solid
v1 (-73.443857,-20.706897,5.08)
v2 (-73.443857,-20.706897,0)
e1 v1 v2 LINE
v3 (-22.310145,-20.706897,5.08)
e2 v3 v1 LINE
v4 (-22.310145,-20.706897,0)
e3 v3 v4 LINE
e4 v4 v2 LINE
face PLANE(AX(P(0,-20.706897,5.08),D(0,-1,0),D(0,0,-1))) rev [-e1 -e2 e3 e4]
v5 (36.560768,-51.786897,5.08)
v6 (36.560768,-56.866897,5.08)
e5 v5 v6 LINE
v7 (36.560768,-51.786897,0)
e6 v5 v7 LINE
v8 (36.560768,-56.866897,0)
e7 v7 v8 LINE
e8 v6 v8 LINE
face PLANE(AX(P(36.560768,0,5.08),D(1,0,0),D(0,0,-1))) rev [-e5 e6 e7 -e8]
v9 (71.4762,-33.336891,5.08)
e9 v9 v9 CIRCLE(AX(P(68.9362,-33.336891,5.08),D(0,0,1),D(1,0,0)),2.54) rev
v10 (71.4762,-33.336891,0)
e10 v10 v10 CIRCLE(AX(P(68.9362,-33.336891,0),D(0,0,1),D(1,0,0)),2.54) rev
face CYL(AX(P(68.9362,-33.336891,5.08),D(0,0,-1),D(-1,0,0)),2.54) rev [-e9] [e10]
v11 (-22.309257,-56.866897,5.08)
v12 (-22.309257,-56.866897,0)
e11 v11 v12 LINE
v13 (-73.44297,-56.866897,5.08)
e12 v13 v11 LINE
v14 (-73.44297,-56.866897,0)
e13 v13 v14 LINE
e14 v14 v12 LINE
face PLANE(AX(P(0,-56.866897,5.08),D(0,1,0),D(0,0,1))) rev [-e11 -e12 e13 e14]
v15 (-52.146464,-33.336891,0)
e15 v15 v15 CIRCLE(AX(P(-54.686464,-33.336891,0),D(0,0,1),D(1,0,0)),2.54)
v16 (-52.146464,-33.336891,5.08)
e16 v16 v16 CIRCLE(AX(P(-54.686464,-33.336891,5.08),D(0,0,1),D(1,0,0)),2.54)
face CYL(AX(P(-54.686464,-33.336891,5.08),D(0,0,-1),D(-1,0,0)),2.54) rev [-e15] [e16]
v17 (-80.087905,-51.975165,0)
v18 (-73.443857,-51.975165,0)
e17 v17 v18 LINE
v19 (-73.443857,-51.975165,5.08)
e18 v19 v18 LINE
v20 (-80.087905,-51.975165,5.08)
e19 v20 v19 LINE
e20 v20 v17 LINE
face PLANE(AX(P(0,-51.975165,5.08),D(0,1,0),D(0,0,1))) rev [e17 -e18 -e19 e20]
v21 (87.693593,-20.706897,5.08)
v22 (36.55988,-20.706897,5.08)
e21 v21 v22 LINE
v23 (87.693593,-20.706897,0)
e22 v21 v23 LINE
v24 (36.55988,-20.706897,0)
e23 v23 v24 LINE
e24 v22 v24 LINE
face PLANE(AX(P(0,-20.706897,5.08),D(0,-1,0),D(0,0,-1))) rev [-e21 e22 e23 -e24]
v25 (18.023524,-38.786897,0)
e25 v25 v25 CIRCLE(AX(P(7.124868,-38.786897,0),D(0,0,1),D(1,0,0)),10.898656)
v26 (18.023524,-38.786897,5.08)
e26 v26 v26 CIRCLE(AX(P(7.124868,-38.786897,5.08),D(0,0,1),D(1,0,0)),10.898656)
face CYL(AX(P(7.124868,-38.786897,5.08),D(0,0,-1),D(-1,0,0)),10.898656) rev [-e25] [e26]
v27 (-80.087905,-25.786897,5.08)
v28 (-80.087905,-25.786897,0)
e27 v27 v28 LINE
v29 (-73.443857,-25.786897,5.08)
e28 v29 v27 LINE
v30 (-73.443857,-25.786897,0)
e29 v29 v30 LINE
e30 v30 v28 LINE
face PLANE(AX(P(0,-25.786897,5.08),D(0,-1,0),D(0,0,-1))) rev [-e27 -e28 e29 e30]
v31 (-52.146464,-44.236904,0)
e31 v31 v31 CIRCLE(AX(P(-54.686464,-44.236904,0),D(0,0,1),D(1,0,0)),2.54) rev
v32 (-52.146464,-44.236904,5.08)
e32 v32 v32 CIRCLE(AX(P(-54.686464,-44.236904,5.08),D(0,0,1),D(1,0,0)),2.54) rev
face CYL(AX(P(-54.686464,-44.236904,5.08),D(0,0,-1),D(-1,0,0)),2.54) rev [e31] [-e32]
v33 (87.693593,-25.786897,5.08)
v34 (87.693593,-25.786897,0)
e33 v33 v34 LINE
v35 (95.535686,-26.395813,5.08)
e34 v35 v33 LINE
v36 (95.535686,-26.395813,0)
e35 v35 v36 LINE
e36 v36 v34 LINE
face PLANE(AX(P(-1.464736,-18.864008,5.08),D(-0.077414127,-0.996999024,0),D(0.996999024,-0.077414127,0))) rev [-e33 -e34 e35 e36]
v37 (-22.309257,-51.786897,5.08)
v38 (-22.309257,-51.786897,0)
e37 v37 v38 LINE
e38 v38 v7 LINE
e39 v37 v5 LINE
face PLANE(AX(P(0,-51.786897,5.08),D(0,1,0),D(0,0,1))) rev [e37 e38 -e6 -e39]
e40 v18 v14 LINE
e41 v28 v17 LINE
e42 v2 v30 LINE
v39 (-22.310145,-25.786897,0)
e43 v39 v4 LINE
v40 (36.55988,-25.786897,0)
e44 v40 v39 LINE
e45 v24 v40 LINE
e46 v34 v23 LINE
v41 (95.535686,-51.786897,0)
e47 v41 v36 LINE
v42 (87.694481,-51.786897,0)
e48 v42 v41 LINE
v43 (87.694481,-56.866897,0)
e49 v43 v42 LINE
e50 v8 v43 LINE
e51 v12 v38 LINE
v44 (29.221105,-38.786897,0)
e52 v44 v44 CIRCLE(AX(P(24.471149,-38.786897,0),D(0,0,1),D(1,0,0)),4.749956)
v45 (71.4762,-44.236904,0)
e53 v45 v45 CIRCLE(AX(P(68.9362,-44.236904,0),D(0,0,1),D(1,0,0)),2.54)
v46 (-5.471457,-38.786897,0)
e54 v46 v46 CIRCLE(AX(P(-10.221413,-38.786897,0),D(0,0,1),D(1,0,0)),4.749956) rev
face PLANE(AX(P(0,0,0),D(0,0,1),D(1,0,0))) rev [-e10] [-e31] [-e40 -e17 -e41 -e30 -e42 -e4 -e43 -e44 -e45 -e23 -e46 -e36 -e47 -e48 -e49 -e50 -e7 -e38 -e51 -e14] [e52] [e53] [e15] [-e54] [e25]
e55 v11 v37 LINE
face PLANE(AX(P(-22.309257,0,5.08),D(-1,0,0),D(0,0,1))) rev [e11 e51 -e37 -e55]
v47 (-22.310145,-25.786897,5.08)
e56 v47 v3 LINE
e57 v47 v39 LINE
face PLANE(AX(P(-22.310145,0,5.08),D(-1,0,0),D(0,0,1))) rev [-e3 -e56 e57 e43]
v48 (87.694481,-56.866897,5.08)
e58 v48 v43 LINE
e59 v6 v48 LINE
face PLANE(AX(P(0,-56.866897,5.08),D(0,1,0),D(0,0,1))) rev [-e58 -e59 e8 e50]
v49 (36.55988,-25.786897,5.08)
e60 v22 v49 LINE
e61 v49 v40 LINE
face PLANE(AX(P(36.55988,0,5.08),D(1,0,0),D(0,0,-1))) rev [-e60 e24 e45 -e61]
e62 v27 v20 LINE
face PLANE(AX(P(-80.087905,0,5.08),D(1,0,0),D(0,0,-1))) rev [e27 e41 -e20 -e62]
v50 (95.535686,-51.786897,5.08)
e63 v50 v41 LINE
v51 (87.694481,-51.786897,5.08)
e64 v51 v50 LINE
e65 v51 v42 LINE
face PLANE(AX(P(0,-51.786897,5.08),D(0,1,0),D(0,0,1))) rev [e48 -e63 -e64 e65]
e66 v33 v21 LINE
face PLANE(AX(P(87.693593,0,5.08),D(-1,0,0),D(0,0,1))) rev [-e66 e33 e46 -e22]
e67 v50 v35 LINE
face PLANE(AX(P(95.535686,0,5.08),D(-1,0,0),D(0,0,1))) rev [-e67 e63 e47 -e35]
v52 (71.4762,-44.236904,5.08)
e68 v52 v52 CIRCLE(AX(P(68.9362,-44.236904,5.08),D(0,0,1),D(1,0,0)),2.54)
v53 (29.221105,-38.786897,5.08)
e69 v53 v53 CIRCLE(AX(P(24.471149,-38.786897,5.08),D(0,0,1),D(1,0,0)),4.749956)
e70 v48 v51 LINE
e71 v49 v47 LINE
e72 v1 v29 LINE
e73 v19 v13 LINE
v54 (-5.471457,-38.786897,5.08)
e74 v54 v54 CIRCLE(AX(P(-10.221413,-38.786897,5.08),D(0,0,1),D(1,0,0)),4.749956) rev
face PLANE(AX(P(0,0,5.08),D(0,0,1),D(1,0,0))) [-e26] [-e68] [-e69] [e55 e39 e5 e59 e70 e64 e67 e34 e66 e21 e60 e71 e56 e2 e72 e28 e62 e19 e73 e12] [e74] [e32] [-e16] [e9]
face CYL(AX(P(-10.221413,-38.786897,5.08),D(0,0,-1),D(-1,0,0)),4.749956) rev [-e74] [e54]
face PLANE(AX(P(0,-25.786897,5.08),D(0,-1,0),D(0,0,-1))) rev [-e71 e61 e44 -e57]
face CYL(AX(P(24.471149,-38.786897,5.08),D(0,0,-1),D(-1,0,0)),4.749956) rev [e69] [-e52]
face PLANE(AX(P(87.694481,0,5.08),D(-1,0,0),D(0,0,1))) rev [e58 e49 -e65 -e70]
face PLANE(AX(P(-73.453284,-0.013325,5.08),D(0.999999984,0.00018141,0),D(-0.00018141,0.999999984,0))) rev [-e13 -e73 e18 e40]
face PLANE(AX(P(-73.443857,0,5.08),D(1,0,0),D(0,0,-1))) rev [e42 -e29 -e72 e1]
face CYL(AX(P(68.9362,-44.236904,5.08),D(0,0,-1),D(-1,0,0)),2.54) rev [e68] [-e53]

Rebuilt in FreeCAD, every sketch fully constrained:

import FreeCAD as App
import Part
import Sketcher
from FreeCAD import Vector
Q = App.Units.Quantity

doc = App.newDocument("Part")
params = doc.addObject("Spreadsheet::Sheet", "Params")
for row, (alias, value) in enumerate([
    ("sketch1_diameter", "0.2 in"),
    ("sketch1_height", "0.2 in"),
    ("pad1_length", "0.2 in"),
], start=1):
    params.set(f"A{row}", alias)
    params.set(f"B{row}", "=" + value)
    params.setAlias(f"B{row}", alias)

body = doc.addObject("PartDesign::Body", "Body")

# Sketch on XY plane
sketch1 = doc.addObject("Sketcher::SketchObject", "Sketch")
body.addObject(sketch1)
sketch1.AttachmentSupport = (doc.XY_Plane, [""])
sketch1.MapMode = "FlatFace"
sketch1.addGeometry(Part.LineSegment(Vector(-73.4, -20.7, 0), Vector(-73.4, -25.8, 0)), False)
sketch1.addGeometry(Part.LineSegment(Vector(-73.4, -25.8, 0), Vector(-80.1, -25.8, 0)), False)
sketch1.addGeometry(Part.LineSegment(Vector(-80.1, -25.8, 0), Vector(-80.1, -52, 0)), False)
sketch1.addGeometry(Part.LineSegment(Vector(-80.1, -52, 0), Vector(-73.4, -52, 0)), False)
sketch1.addGeometry(Part.LineSegment(Vector(-73.4, -52, 0), Vector(-73.4, -56.9, 0)), False)
sketch1.addGeometry(Part.LineSegment(Vector(-73.4, -56.9, 0), Vector(-22.3, -56.9, 0)), False)
sketch1.addGeometry(Part.LineSegment(Vector(-22.3, -56.9, 0), Vector(-22.3, -51.8, 0)), False)
sketch1.addGeometry(Part.LineSegment(Vector(-22.3, -51.8, 0), Vector(36.6, -51.8, 0)), False)
sketch1.addGeometry(Part.LineSegment(Vector(36.6, -51.8, 0), Vector(36.6, -56.9, 0)), False)
sketch1.addGeometry(Part.LineSegment(Vector(36.6, -56.9, 0), Vector(87.7, -56.9, 0)), False)
sketch1.addGeometry(Part.LineSegment(Vector(87.7, -56.9, 0), Vector(87.7, -51.8, 0)), False)
sketch1.addGeometry(Part.LineSegment(Vector(87.7, -51.8, 0), Vector(95.5, -51.8, 0)), False)
sketch1.addGeometry(Part.LineSegment(Vector(95.5, -51.8, 0), Vector(95.5, -26.4, 0)), False)
sketch1.addGeometry(Part.LineSegment(Vector(95.5, -26.4, 0), Vector(87.7, -25.8, 0)), False)
sketch1.addGeometry(Part.LineSegment(Vector(87.7, -25.8, 0), Vector(87.7, -20.7, 0)), False)
sketch1.addGeometry(Part.LineSegment(Vector(87.7, -20.7, 0), Vector(36.6, -20.7, 0)), False)
sketch1.addGeometry(Part.LineSegment(Vector(36.6, -20.7, 0), Vector(36.6, -25.8, 0)), False)
sketch1.addGeometry(Part.LineSegment(Vector(36.6, -25.8, 0), Vector(-22.3, -25.8, 0)), False)
sketch1.addGeometry(Part.LineSegment(Vector(-22.3, -25.8, 0), Vector(-22.3, -20.7, 0)), False)
sketch1.addGeometry(Part.LineSegment(Vector(-22.3, -20.7, 0), Vector(-73.4, -20.7, 0)), False)
sketch1.addGeometry(Part.Circle(Vector(-54.7, -44.2, 0), Vector(0, 0, 1), 2.5), False)
sketch1.addGeometry(Part.Circle(Vector(68.9, -44.2, 0), Vector(0, 0, 1), 2.5), False)
sketch1.addGeometry(Part.Circle(Vector(-10.2, -38.8, 0), Vector(0, 0, 1), 4.7), False)
sketch1.addGeometry(Part.Circle(Vector(-54.7, -33.3, 0), Vector(0, 0, 1), 2.5), False)
sketch1.addGeometry(Part.Circle(Vector(7.1, -38.8, 0), Vector(0, 0, 1), 10.9), False)
sketch1.addGeometry(Part.Circle(Vector(24.5, -38.8, 0), Vector(0, 0, 1), 4.7), False)
sketch1.addGeometry(Part.Circle(Vector(68.9, -33.3, 0), Vector(0, 0, 1), 2.5), False)
sketch1.addConstraint(Sketcher.Constraint("Coincident", 0, 2, 1, 1))
sketch1.addConstraint(Sketcher.Constraint("Coincident", 1, 2, 2, 1))
sketch1.addConstraint(Sketcher.Constraint("Coincident", 2, 2, 3, 1))
sketch1.addConstraint(Sketcher.Constraint("Coincident", 3, 2, 4, 1))
sketch1.addConstraint(Sketcher.Constraint("Coincident", 4, 2, 5, 1))
sketch1.addConstraint(Sketcher.Constraint("Coincident", 5, 2, 6, 1))
sketch1.addConstraint(Sketcher.Constraint("Coincident", 6, 2, 7, 1))
sketch1.addConstraint(Sketcher.Constraint("Coincident", 7, 2, 8, 1))
sketch1.addConstraint(Sketcher.Constraint("Coincident", 8, 2, 9, 1))
sketch1.addConstraint(Sketcher.Constraint("Coincident", 9, 2, 10, 1))
sketch1.addConstraint(Sketcher.Constraint("Coincident", 10, 2, 11, 1))
sketch1.addConstraint(Sketcher.Constraint("Coincident", 11, 2, 12, 1))
sketch1.addConstraint(Sketcher.Constraint("Coincident", 12, 2, 13, 1))
sketch1.addConstraint(Sketcher.Constraint("Coincident", 13, 2, 14, 1))
sketch1.addConstraint(Sketcher.Constraint("Coincident", 14, 2, 15, 1))
sketch1.addConstraint(Sketcher.Constraint("Coincident", 15, 2, 16, 1))
sketch1.addConstraint(Sketcher.Constraint("Coincident", 16, 2, 17, 1))
sketch1.addConstraint(Sketcher.Constraint("Coincident", 17, 2, 18, 1))
sketch1.addConstraint(Sketcher.Constraint("Coincident", 18, 2, 19, 1))
sketch1.addConstraint(Sketcher.Constraint("Coincident", 19, 2, 0, 1))
sketch1.addConstraint(Sketcher.Constraint("Vertical", 0))
sketch1.addConstraint(Sketcher.Constraint("Horizontal", 1))
sketch1.addConstraint(Sketcher.Constraint("Vertical", 2))
sketch1.addConstraint(Sketcher.Constraint("Horizontal", 3))
sketch1.addConstraint(Sketcher.Constraint("Horizontal", 5))
sketch1.addConstraint(Sketcher.Constraint("Vertical", 6))
sketch1.addConstraint(Sketcher.Constraint("Horizontal", 7))
sketch1.addConstraint(Sketcher.Constraint("Vertical", 8))
sketch1.addConstraint(Sketcher.Constraint("Horizontal", 9))
sketch1.addConstraint(Sketcher.Constraint("Vertical", 10))
sketch1.addConstraint(Sketcher.Constraint("Horizontal", 11))
sketch1.addConstraint(Sketcher.Constraint("Vertical", 12))
sketch1.addConstraint(Sketcher.Constraint("Vertical", 14))
sketch1.addConstraint(Sketcher.Constraint("Horizontal", 15))
sketch1.addConstraint(Sketcher.Constraint("Vertical", 16))
sketch1.addConstraint(Sketcher.Constraint("Horizontal", 17))
sketch1.addConstraint(Sketcher.Constraint("Vertical", 18))
sketch1.addConstraint(Sketcher.Constraint("Horizontal", 19))
sketch1.addConstraint(Sketcher.Constraint("Equal", 20, 21))
sketch1.addConstraint(Sketcher.Constraint("Equal", 21, 23))
sketch1.addConstraint(Sketcher.Constraint("Equal", 22, 25))
sketch1.addConstraint(Sketcher.Constraint("Equal", 23, 26))
sketch1.addConstraint(Sketcher.Constraint("Horizontal", 20, 3, 21, 3))
sketch1.addConstraint(Sketcher.Constraint("Horizontal", 22, 3, 24, 3))
sketch1.addConstraint(Sketcher.Constraint("Horizontal", 24, 3, 25, 3))
sketch1.addConstraint(Sketcher.Constraint("Horizontal", 23, 3, 26, 3))
sketch1.addConstraint(Sketcher.Constraint("Horizontal", 5, 2, 8, 2))
sketch1.addConstraint(Sketcher.Constraint("Horizontal", 7, 2, 10, 2))
sketch1.addConstraint(Sketcher.Constraint("Horizontal", 1, 2, 13, 2))
sketch1.addConstraint(Sketcher.Constraint("Horizontal", 13, 2, 16, 2))
sketch1.addConstraint(Sketcher.Constraint("Horizontal", 15, 2, 18, 2))
sketch1.addConstraint(Sketcher.Constraint("Vertical", 20, 3, 23, 3))
sketch1.addConstraint(Sketcher.Constraint("Vertical", 21, 3, 26, 3))
sketch1.addConstraint(Sketcher.Constraint("Vertical", 0, 2, 3, 2))
sketch1.addConstraint(Sketcher.Constraint("Equal", 5, 9))
sketch1.addConstraint(Sketcher.Constraint("Equal", 9, 15))
sketch1.addConstraint(Sketcher.Constraint("Equal", 7, 17))
sketch1.addConstraint(Sketcher.Constraint("Equal", 15, 19))
sketch1.addConstraint(Sketcher.Constraint("Equal", 0, 6))
sketch1.addConstraint(Sketcher.Constraint("Diameter", 20, Q("0.2 in")))
sketch1.addConstraint(Sketcher.Constraint("DistanceY", 0, 2, 0, 1, Q("0.2 in")))
sketch1.addConstraint(Sketcher.Constraint("Diameter", 22, Q("9.499912 mm")))
sketch1.addConstraint(Sketcher.Constraint("Diameter", 24, Q("21.797313 mm")))
sketch1.addConstraint(Sketcher.Constraint("DistanceX", -1, 1, 21, 3, Q("68.9362 mm")))
sketch1.addConstraint(Sketcher.Constraint("DistanceY", 22, 3, 0, 2, Q("13 mm")))
sketch1.addConstraint(Sketcher.Constraint("DistanceY", 4, 2, 0, 2, Q("31.08 mm")))
sketch1.addConstraint(Sketcher.Constraint("DistanceX", 24, 3, 7, 2, Q("29.4359 mm")))
sketch1.addConstraint(Sketcher.Constraint("DistanceX", 1, 2, 1, 1, Q("6.644047 mm")))
sketch1.addConstraint(Sketcher.Constraint("DistanceX", 5, 1, 5, 2, Q("51.133713 mm")))
sketch1.addConstraint(Sketcher.Constraint("DistanceX", 7, 1, 7, 2, Q("58.870025 mm")))
sketch1.addConstraint(Sketcher.Constraint("DistanceX", 11, 1, 11, 2, Q("7.841205 mm")))
sketch1.addConstraint(Sketcher.Constraint("DistanceY", 2, 2, 2, 1, Q("26.188267 mm")))
sketch1.addConstraint(Sketcher.Constraint("DistanceY", 12, 1, 12, 2, Q("25.391084 mm")))
sketch1.addConstraint(Sketcher.Constraint("DistanceY", 23, 3, -1, 1, Q("33.336891 mm")))
sketch1.addConstraint(Sketcher.Constraint("DistanceX", -1, 1, 25, 3, Q("24.471149 mm")))
sketch1.addConstraint(Sketcher.Constraint("DistanceX", 4, 2, -1, 1, Q("73.44297 mm")))
sketch1.addConstraint(Sketcher.Constraint("DistanceX", -1, 1, 15, 2, Q("36.55988 mm")))
sketch1.addConstraint(Sketcher.Constraint("DistanceX", 20, 3, 22, 3, Q("44.465051 mm")))
sketch1.addConstraint(Sketcher.Constraint("DistanceX", 22, 3, 24, 3, Q("17.346281 mm")))
sketch1.addConstraint(Sketcher.Constraint("DistanceY", 2, 2, 20, 3, Q("7.738261 mm")))
sketch1.addConstraint(Sketcher.Constraint("DistanceY", 20, 3, -1, 1, Q("44.236904 mm")))
sketch1.setExpression("Constraints[59]", "Params.sketch1_diameter")
sketch1.setExpression("Constraints[60]", "Params.sketch1_height")
pad1 = doc.addObject("PartDesign::Pad", "Pad")
body.addObject(pad1)
pad1.Profile = sketch1
pad1.setExpression("Length", "Params.pad1_length")

doc.recompute()
